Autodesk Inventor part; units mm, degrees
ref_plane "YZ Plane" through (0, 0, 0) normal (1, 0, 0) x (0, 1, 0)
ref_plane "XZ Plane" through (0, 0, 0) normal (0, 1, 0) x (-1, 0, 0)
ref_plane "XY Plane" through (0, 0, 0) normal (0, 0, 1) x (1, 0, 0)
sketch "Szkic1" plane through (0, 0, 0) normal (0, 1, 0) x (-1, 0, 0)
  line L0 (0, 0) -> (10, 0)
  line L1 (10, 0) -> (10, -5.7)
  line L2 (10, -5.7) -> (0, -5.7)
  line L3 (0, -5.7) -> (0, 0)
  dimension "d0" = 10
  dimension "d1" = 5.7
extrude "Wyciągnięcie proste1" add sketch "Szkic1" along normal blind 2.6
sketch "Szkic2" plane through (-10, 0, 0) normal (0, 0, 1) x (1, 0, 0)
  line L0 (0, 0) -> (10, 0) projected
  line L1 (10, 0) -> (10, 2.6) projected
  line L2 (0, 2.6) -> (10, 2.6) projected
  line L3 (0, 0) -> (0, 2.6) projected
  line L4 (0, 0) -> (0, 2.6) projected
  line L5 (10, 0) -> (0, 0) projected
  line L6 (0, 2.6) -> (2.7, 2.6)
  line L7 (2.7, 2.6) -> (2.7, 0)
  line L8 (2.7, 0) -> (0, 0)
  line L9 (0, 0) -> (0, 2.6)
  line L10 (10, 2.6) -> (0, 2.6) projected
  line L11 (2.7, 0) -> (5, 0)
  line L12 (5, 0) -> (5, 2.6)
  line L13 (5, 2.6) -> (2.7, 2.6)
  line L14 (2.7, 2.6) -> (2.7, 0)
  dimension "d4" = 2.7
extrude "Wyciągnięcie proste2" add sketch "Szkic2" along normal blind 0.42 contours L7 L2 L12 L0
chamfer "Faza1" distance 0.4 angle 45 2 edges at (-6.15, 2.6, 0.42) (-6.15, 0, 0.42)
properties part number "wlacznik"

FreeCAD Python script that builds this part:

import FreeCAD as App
import Part
import Sketcher

V = App.Vector


def edges_at(feature, points):
    """Names of the edges that pass closest to the given points."""
    edges = feature.Shape.Edges
    near = lambda p: min(range(len(edges)), key=lambda i: edges[i].distToShape(Part.Vertex(*p))[0])
    return sorted({f"Edge{near(p) + 1}" for p in points})

doc = App.newDocument("Part")
params = doc.addObject("Spreadsheet::Sheet", "Params")
for row, (alias, value) in enumerate([
    ("sketch1_width", "10 mm"),
    ("sketch1_height", "5.7 mm"),
    ("pad1_length", "2.6 mm"),
    ("sketch2_width", "2.3 mm"),
    ("sketch2_height", "2.6 mm"),
    ("pad2_length", "0.42 mm"),
    ("chamfer_size", "0.4 mm"),
], start=1):
    params.set(f"A{row}", alias)
    params.set(f"B{row}", "=" + value)
    params.setAlias(f"B{row}", alias)

body = doc.addObject("PartDesign::Body", "Body")

# Sketch on XZ plane
sketch1 = body.newObject("Sketcher::SketchObject", "Sketch")
sketch1.AttachmentSupport = (doc.getObject("XZ_Plane"), [""])
sketch1.MapMode = "FlatFace"
sketch1.addGeometry([
    Part.LineSegment(V(-10, 0, 0), V(0, 0, 0)),
    Part.LineSegment(V(0, 0, 0), V(0, -5.7, 0)),
    Part.LineSegment(V(0, -5.7, 0), V(-10, -5.7, 0)),
    Part.LineSegment(V(-10, -5.7, 0), V(-10, 0, 0)),
], False)
sketch1.addConstraint([
    Sketcher.Constraint("Coincident", 0, 2, 1, 1),
    Sketcher.Constraint("Coincident", 1, 2, 2, 1),
    Sketcher.Constraint("Coincident", 2, 2, 3, 1),
    Sketcher.Constraint("Coincident", 3, 2, 0, 1),
    Sketcher.Constraint("Horizontal", 0),
    Sketcher.Constraint("Vertical", 1),
    Sketcher.Constraint("Horizontal", 2),
    Sketcher.Constraint("Vertical", 3),
    Sketcher.Constraint("Coincident", 0, 2, -1, 1),
    Sketcher.Constraint("DistanceX", 0, 1, 0, 2, 10.0),
    Sketcher.Constraint("DistanceY", 1, 2, 1, 1, 5.7),
])
sketch1.setExpression("Constraints[9]", "Params.sketch1_width")
sketch1.setExpression("Constraints[10]", "Params.sketch1_height")
pad1 = body.newObject("PartDesign::Pad", "Pad")
pad1.Profile = sketch1
pad1.setExpression("Length", "Params.pad1_length")
pad1.Reversed = True

# Sketch on XY plane
sketch2 = body.newObject("Sketcher::SketchObject", "Sketch001")
sketch2.AttachmentSupport = (doc.getObject("XY_Plane"), [""])
sketch2.MapMode = "FlatFace"
sketch2.addGeometry([
    Part.LineSegment(V(-7.3, 2.6, 0), V(-7.3, 0, 0)),
    Part.LineSegment(V(-7.3, 0, 0), V(-5, 0, 0)),
    Part.LineSegment(V(-5, 0, 0), V(-5, 2.6, 0)),
    Part.LineSegment(V(-5, 2.6, 0), V(-7.3, 2.6, 0)),
], False)
sketch2.addConstraint([
    Sketcher.Constraint("Coincident", 0, 2, 1, 1),
    Sketcher.Constraint("Coincident", 1, 2, 2, 1),
    Sketcher.Constraint("Coincident", 2, 2, 3, 1),
    Sketcher.Constraint("Coincident", 3, 2, 0, 1),
    Sketcher.Constraint("Vertical", 0),
    Sketcher.Constraint("Horizontal", 1),
    Sketcher.Constraint("Vertical", 2),
    Sketcher.Constraint("Horizontal", 3),
    Sketcher.Constraint("PointOnObject", 0, 2, -1),
    Sketcher.Constraint("DistanceX", 1, 1, 1, 2, 2.3),
    Sketcher.Constraint("DistanceY", 0, 2, 0, 1, 2.6),
    Sketcher.Constraint("DistanceX", 1, 2, -1, 1, 5.0),
])
sketch2.setExpression("Constraints[9]", "Params.sketch2_width")
sketch2.setExpression("Constraints[10]", "Params.sketch2_height")
pad2 = body.newObject("PartDesign::Pad", "Pad001")
pad2.Profile = sketch2
pad2.setExpression("Length", "Params.pad2_length")
doc.recompute()

chamfer = body.newObject("PartDesign::Chamfer", "Chamfer")
chamfer.Base = (pad2, edges_at(pad2, [(-6.15, 2.6, 0.42), (-6.15, 0, 0.42)]))
chamfer.setExpression("Size", "Params.chamfer_size")

doc.recompute()
